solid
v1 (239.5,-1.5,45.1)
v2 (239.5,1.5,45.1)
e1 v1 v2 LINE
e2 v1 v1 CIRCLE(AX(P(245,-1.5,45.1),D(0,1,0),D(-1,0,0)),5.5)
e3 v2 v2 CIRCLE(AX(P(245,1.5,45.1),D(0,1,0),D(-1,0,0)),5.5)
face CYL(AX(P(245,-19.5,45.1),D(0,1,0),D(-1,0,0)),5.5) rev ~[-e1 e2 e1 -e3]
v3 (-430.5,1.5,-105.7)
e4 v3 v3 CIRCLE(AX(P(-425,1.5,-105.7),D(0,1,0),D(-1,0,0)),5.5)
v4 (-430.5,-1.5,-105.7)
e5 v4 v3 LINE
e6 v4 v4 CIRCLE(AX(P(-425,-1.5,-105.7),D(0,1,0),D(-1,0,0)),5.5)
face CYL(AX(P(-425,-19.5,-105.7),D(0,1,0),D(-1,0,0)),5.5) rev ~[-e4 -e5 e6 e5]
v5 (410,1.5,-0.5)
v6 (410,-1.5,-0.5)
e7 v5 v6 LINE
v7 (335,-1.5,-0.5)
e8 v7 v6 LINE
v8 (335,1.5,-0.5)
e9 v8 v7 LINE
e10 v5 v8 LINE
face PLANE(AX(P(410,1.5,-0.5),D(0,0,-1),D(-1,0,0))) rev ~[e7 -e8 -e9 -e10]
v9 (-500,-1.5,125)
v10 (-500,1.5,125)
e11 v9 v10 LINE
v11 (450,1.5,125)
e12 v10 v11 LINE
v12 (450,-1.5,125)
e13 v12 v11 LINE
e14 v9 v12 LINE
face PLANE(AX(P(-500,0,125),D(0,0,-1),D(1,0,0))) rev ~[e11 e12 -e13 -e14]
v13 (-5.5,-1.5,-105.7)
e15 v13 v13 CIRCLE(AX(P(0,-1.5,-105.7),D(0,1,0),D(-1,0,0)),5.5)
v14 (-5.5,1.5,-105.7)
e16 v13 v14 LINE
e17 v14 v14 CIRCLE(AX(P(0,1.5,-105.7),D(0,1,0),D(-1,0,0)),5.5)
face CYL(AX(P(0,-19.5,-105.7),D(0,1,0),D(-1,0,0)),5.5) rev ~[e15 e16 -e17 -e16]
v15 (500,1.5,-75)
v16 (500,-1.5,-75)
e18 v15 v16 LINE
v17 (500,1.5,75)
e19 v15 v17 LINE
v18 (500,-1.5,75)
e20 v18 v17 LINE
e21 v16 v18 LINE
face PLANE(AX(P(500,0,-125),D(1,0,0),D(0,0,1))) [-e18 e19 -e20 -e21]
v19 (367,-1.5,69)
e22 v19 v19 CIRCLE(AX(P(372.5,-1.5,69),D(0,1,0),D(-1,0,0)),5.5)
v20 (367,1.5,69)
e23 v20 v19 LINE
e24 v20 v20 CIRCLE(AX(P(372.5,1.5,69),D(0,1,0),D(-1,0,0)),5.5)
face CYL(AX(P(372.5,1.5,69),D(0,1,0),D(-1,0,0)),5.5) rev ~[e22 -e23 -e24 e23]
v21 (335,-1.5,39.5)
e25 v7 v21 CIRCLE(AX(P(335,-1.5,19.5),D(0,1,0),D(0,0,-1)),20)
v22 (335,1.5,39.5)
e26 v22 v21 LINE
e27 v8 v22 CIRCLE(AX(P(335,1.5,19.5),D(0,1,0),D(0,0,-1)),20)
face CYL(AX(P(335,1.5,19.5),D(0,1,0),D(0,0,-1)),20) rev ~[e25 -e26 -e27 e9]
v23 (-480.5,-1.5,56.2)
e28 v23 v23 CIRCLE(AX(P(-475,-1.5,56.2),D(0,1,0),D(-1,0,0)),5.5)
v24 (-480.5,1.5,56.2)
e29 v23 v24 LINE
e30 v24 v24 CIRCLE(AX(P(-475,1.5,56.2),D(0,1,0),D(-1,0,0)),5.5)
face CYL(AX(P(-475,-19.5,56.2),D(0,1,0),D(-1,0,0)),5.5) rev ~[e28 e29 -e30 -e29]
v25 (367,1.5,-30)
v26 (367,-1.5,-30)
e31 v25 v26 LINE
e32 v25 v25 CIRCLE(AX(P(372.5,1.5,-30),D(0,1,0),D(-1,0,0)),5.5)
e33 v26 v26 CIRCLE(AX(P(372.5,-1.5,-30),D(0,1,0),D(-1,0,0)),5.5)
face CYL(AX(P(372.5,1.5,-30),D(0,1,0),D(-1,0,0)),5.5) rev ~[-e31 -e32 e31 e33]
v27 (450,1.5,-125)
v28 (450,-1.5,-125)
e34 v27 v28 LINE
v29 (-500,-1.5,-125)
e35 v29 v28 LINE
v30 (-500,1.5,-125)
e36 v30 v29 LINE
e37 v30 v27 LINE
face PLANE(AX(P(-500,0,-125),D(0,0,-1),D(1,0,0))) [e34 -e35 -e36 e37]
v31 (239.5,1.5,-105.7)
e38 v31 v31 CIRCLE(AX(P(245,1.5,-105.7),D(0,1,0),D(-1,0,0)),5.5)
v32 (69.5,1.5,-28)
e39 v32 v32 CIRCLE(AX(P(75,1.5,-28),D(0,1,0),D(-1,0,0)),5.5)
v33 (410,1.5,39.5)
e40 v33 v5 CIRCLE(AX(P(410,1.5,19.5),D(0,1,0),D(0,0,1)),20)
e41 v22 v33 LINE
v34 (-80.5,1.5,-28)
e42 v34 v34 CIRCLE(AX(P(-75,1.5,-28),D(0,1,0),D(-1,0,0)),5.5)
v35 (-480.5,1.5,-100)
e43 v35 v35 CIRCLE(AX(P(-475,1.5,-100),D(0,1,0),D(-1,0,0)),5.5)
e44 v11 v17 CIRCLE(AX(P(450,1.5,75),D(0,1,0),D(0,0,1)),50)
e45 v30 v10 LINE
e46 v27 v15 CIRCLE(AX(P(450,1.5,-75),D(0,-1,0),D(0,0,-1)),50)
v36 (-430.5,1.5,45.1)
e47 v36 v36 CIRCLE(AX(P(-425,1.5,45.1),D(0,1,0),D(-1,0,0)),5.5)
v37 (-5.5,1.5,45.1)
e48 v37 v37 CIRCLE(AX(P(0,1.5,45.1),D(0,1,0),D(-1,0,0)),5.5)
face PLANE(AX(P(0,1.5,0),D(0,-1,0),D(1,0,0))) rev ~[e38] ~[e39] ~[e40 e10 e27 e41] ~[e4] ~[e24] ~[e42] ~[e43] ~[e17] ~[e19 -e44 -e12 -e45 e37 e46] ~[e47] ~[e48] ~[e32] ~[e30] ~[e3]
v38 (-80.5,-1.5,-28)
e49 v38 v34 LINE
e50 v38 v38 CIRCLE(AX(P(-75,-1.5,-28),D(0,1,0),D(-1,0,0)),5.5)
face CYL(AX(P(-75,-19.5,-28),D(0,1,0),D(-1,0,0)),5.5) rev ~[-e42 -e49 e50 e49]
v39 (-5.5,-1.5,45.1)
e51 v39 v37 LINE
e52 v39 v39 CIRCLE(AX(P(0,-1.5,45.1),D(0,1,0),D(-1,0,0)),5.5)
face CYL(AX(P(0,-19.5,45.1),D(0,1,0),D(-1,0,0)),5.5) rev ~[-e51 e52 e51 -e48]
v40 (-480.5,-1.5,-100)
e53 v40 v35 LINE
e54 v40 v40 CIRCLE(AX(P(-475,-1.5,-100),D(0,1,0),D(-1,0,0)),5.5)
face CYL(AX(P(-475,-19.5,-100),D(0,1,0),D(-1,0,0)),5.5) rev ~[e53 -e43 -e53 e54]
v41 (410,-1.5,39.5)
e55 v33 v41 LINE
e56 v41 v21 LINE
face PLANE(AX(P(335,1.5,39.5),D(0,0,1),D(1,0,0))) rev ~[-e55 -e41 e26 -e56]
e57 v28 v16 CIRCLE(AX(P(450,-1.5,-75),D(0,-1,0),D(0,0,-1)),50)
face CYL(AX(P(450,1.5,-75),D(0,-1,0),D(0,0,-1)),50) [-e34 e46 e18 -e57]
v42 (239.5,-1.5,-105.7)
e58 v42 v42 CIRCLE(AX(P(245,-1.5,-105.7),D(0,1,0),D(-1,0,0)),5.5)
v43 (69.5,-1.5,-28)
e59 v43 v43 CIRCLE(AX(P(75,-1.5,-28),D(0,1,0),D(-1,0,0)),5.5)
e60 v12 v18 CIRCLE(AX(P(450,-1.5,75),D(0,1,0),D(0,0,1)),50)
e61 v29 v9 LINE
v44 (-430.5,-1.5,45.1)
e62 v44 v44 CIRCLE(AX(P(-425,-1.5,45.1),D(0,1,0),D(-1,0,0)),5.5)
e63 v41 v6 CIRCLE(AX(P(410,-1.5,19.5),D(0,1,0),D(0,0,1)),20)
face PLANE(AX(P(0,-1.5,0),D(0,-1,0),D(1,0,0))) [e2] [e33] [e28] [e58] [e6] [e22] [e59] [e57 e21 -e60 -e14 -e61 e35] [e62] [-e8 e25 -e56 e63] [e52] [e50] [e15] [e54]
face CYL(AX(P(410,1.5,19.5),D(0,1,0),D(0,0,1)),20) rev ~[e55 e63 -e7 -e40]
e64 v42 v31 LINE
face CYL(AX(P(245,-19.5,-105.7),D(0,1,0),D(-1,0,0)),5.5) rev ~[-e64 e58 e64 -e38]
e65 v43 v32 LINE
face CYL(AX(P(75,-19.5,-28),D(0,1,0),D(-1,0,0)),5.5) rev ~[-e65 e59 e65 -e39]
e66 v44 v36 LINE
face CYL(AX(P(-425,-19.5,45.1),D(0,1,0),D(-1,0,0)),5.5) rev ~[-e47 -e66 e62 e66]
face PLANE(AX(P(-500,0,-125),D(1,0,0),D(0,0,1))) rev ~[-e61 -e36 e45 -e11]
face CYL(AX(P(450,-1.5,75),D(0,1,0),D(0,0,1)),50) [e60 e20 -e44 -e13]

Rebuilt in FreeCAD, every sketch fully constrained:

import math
import FreeCAD as App
import Part
import Sketcher
from FreeCAD import Vector
Q = App.Units.Quantity


def edges_at(feature, points):
    """Names of the edges that pass closest to the given points."""
    edges = feature.Shape.Edges
    near = lambda p: min(range(len(edges)), key=lambda i: edges[i].distToShape(Part.Vertex(*p))[0])
    return sorted({f"Edge{near(p) + 1}" for p in points})

doc = App.newDocument("Part")
body = doc.addObject("PartDesign::Body", "Body")

# Sketch on XZ plane
sketch1 = body.newObject("Sketcher::SketchObject", "Sketch")
sketch1.AttachmentSupport = (doc.getObject("XZ_Plane"), [""])
sketch1.MapMode = "FlatFace"
sketch1.addGeometry([
    Part.LineSegment(Vector(-500, 125, 0), Vector(-500, -125, 0)),
    Part.LineSegment(Vector(-500, -125, 0), Vector(500, -125, 0)),
    Part.LineSegment(Vector(500, -125, 0), Vector(500, 125, 0)),
    Part.LineSegment(Vector(500, 125, 0), Vector(-500, 125, 0)),
], False)
sketch1.addConstraint([
    Sketcher.Constraint("Coincident", 0, 2, 1, 1),
    Sketcher.Constraint("Coincident", 1, 2, 2, 1),
    Sketcher.Constraint("Coincident", 2, 2, 3, 1),
    Sketcher.Constraint("Coincident", 3, 2, 0, 1),
    Sketcher.Constraint("Vertical", 0),
    Sketcher.Constraint("Horizontal", 1),
    Sketcher.Constraint("Vertical", 2),
    Sketcher.Constraint("Horizontal", 3),
    Sketcher.Constraint("Symmetric", 0, 2, 2, 2, -1, 1),
    Sketcher.Constraint("DistanceX", 1, 1, 1, 2, Q("1000 mm")),
    Sketcher.Constraint("DistanceY", 0, 2, 0, 1, Q("250 mm")),
])
pad1 = body.newObject("PartDesign::Pad", "Pad")
pad1.Profile = sketch1
pad1.Length = 3
pad1.Midplane = True

# Sketch on XZ plane
sketch2 = body.newObject("Sketcher::SketchObject", "Sketch001")
sketch2.AttachmentSupport = (doc.getObject("XZ_Plane"), [""])
sketch2.MapMode = "FlatFace"
sketch2.AttachmentOffset = App.Placement(Vector(0, 0, 1.5), App.Rotation())
sketch2.addGeometry([
    Part.Circle(Vector(-475, 56.2, 0), Vector(0, 0, 1), 5.5),  # 0
    Part.Circle(Vector(-475, -100, 0), Vector(0, 0, 1), 5.5),  # 1
    Part.Circle(Vector(-425, -105.7, 0), Vector(0, 0, 1), 5.5),  # 2
    Part.Circle(Vector(-425, 45.1, 0), Vector(0, 0, 1), 5.5),  # 3
    Part.Circle(Vector(-75, -28, 0), Vector(0, 0, 1), 5.5),  # 4
    Part.Circle(Vector(75, -28, 0), Vector(0, 0, 1), 5.5),  # 5
    Part.Circle(Vector(0, -105.7, 0), Vector(0, 0, 1), 5.5),  # 6
    Part.Circle(Vector(0, 45.1, 0), Vector(0, 0, 1), 5.5),  # 7
    Part.Circle(Vector(245, 45.1, 0), Vector(0, 0, 1), 5.5),  # 8
    Part.Circle(Vector(245, -105.7, 0), Vector(0, 0, 1), 5.5),  # 9
], False)
sketch2.addConstraint([
    Sketcher.Constraint("Equal", 0, 1),
    Sketcher.Constraint("Equal", 1, 2),
    Sketcher.Constraint("Equal", 2, 3),
    Sketcher.Constraint("Equal", 3, 4),
    Sketcher.Constraint("Equal", 4, 5),
    Sketcher.Constraint("Equal", 5, 6),
    Sketcher.Constraint("Equal", 6, 7),
    Sketcher.Constraint("Equal", 7, 8),
    Sketcher.Constraint("Equal", 8, 9),
    Sketcher.Constraint("Symmetric", 4, 3, 5, 3, -2),
    Sketcher.Constraint("PointOnObject", 6, 3, -2),
    Sketcher.Constraint("PointOnObject", 7, 3, -2),
    Sketcher.Constraint("Horizontal", 2, 3, 6, 3),
    Sketcher.Constraint("Horizontal", 3, 3, 7, 3),
    Sketcher.Constraint("Horizontal", 7, 3, 8, 3),
    Sketcher.Constraint("Horizontal", 6, 3, 9, 3),
    Sketcher.Constraint("Vertical", 0, 3, 1, 3),
    Sketcher.Constraint("Vertical", 2, 3, 3, 3),
    Sketcher.Constraint("Vertical", 8, 3, 9, 3),
    Sketcher.Constraint("Diameter", 0, Q("11 mm")),
    Sketcher.Constraint("DistanceX", 0, 3, -1, 1, Q("475 mm")),
    Sketcher.Constraint("DistanceY", 1, 3, -1, 1, Q("100 mm")),
    Sketcher.Constraint("DistanceX", 2, 3, -1, 1, Q("425 mm")),
    Sketcher.Constraint("DistanceX", 4, 3, -1, 1, Q("75 mm")),
    Sketcher.Constraint("DistanceY", 4, 3, -1, 1, Q("28 mm")),
    Sketcher.Constraint("DistanceX", -1, 1, 8, 3, Q("245 mm")),
    Sketcher.Constraint("DistanceY", -1, 1, 0, 3, Q("56.2 mm")),
    Sketcher.Constraint("DistanceY", 2, 3, -1, 1, Q("105.7 mm")),
    Sketcher.Constraint("DistanceY", -1, 1, 3, 3, Q("45.1 mm")),
])
doc.recompute()
hole = body.newObject("PartDesign::Hole", "Hole")
hole.Profile = sketch2
hole.ThreadType = "None"
hole.Diameter = 11
hole.DepthType = "Dimension"
hole.Depth = 18
hole.DrillPoint = "Angled"
hole.DrillPointAngle = 118

# Sketch on XZ plane
sketch3 = body.newObject("Sketcher::SketchObject", "Sketch002")
sketch3.AttachmentSupport = (doc.getObject("XZ_Plane"), [""])
sketch3.MapMode = "FlatFace"
sketch3.AttachmentOffset = App.Placement(Vector(0, 0, -1.5), App.Rotation())
sketch3.addGeometry([
    Part.Circle(Vector(372.5, -30, 0), Vector(0, 0, 1), 5.5),  # 0
    Part.Circle(Vector(372.5, 69, 0), Vector(0, 0, 1), 5.5),  # 1
    Part.ArcOfCircle(Part.Circle(Vector(410, 19.5, 0), Vector(0, 0, 1), 20), math.radians(-90), math.radians(90)),  # 2
    Part.LineSegment(Vector(410, -0.5, 0), Vector(335, -0.5, 0)),  # 3
    Part.ArcOfCircle(Part.Circle(Vector(335, 19.5, 0), Vector(0, 0, 1), 20), math.radians(90), math.radians(270)),  # 4
    Part.LineSegment(Vector(335, 39.5, 0), Vector(410, 39.5, 0)),  # 5
], False)
sketch3.addConstraint([
    Sketcher.Constraint("Tangent", 2, 1, 3, 1),
    Sketcher.Constraint("Tangent", 3, 2, 4, 2),
    Sketcher.Constraint("Tangent", 4, 1, 5, 1),
    Sketcher.Constraint("Tangent", 5, 2, 2, 2),
    Sketcher.Constraint("Horizontal", 3),
    Sketcher.Constraint("Horizontal", 5),
    Sketcher.Constraint("Equal", 0, 1),
    Sketcher.Constraint("Vertical", 0, 3, 1, 3),
    Sketcher.Constraint("Diameter", 0, Q("11 mm")),
    Sketcher.Constraint("Radius", 2, Q("20 mm")),
    Sketcher.Constraint("DistanceX", 3, 2, 3, 1, Q("75 mm")),
    Sketcher.Constraint("DistanceY", 0, 3, -1, 1, Q("30 mm")),
    Sketcher.Constraint("DistanceY", -1, 1, 1, 3, Q("69 mm")),
    Sketcher.Constraint("DistanceX", -1, 1, 2, 3, Q("410 mm")),
    Sketcher.Constraint("DistanceX", -1, 1, 0, 3, Q("372.5 mm")),
    Sketcher.Constraint("DistanceY", -1, 1, 2, 3, Q("19.5 mm")),
])
pocket1 = body.newObject("PartDesign::Pocket", "Pocket")
pocket1.Profile = sketch3
pocket1.Type = "ThroughAll"
pocket1.Reversed = True
doc.recompute()

fillet = body.newObject("PartDesign::Fillet", "Fillet")
fillet.Base = (pocket1, edges_at(pocket1, [(500, 0, 125), (500, 0, -125)]))
fillet.Radius = 50

doc.recompute()
